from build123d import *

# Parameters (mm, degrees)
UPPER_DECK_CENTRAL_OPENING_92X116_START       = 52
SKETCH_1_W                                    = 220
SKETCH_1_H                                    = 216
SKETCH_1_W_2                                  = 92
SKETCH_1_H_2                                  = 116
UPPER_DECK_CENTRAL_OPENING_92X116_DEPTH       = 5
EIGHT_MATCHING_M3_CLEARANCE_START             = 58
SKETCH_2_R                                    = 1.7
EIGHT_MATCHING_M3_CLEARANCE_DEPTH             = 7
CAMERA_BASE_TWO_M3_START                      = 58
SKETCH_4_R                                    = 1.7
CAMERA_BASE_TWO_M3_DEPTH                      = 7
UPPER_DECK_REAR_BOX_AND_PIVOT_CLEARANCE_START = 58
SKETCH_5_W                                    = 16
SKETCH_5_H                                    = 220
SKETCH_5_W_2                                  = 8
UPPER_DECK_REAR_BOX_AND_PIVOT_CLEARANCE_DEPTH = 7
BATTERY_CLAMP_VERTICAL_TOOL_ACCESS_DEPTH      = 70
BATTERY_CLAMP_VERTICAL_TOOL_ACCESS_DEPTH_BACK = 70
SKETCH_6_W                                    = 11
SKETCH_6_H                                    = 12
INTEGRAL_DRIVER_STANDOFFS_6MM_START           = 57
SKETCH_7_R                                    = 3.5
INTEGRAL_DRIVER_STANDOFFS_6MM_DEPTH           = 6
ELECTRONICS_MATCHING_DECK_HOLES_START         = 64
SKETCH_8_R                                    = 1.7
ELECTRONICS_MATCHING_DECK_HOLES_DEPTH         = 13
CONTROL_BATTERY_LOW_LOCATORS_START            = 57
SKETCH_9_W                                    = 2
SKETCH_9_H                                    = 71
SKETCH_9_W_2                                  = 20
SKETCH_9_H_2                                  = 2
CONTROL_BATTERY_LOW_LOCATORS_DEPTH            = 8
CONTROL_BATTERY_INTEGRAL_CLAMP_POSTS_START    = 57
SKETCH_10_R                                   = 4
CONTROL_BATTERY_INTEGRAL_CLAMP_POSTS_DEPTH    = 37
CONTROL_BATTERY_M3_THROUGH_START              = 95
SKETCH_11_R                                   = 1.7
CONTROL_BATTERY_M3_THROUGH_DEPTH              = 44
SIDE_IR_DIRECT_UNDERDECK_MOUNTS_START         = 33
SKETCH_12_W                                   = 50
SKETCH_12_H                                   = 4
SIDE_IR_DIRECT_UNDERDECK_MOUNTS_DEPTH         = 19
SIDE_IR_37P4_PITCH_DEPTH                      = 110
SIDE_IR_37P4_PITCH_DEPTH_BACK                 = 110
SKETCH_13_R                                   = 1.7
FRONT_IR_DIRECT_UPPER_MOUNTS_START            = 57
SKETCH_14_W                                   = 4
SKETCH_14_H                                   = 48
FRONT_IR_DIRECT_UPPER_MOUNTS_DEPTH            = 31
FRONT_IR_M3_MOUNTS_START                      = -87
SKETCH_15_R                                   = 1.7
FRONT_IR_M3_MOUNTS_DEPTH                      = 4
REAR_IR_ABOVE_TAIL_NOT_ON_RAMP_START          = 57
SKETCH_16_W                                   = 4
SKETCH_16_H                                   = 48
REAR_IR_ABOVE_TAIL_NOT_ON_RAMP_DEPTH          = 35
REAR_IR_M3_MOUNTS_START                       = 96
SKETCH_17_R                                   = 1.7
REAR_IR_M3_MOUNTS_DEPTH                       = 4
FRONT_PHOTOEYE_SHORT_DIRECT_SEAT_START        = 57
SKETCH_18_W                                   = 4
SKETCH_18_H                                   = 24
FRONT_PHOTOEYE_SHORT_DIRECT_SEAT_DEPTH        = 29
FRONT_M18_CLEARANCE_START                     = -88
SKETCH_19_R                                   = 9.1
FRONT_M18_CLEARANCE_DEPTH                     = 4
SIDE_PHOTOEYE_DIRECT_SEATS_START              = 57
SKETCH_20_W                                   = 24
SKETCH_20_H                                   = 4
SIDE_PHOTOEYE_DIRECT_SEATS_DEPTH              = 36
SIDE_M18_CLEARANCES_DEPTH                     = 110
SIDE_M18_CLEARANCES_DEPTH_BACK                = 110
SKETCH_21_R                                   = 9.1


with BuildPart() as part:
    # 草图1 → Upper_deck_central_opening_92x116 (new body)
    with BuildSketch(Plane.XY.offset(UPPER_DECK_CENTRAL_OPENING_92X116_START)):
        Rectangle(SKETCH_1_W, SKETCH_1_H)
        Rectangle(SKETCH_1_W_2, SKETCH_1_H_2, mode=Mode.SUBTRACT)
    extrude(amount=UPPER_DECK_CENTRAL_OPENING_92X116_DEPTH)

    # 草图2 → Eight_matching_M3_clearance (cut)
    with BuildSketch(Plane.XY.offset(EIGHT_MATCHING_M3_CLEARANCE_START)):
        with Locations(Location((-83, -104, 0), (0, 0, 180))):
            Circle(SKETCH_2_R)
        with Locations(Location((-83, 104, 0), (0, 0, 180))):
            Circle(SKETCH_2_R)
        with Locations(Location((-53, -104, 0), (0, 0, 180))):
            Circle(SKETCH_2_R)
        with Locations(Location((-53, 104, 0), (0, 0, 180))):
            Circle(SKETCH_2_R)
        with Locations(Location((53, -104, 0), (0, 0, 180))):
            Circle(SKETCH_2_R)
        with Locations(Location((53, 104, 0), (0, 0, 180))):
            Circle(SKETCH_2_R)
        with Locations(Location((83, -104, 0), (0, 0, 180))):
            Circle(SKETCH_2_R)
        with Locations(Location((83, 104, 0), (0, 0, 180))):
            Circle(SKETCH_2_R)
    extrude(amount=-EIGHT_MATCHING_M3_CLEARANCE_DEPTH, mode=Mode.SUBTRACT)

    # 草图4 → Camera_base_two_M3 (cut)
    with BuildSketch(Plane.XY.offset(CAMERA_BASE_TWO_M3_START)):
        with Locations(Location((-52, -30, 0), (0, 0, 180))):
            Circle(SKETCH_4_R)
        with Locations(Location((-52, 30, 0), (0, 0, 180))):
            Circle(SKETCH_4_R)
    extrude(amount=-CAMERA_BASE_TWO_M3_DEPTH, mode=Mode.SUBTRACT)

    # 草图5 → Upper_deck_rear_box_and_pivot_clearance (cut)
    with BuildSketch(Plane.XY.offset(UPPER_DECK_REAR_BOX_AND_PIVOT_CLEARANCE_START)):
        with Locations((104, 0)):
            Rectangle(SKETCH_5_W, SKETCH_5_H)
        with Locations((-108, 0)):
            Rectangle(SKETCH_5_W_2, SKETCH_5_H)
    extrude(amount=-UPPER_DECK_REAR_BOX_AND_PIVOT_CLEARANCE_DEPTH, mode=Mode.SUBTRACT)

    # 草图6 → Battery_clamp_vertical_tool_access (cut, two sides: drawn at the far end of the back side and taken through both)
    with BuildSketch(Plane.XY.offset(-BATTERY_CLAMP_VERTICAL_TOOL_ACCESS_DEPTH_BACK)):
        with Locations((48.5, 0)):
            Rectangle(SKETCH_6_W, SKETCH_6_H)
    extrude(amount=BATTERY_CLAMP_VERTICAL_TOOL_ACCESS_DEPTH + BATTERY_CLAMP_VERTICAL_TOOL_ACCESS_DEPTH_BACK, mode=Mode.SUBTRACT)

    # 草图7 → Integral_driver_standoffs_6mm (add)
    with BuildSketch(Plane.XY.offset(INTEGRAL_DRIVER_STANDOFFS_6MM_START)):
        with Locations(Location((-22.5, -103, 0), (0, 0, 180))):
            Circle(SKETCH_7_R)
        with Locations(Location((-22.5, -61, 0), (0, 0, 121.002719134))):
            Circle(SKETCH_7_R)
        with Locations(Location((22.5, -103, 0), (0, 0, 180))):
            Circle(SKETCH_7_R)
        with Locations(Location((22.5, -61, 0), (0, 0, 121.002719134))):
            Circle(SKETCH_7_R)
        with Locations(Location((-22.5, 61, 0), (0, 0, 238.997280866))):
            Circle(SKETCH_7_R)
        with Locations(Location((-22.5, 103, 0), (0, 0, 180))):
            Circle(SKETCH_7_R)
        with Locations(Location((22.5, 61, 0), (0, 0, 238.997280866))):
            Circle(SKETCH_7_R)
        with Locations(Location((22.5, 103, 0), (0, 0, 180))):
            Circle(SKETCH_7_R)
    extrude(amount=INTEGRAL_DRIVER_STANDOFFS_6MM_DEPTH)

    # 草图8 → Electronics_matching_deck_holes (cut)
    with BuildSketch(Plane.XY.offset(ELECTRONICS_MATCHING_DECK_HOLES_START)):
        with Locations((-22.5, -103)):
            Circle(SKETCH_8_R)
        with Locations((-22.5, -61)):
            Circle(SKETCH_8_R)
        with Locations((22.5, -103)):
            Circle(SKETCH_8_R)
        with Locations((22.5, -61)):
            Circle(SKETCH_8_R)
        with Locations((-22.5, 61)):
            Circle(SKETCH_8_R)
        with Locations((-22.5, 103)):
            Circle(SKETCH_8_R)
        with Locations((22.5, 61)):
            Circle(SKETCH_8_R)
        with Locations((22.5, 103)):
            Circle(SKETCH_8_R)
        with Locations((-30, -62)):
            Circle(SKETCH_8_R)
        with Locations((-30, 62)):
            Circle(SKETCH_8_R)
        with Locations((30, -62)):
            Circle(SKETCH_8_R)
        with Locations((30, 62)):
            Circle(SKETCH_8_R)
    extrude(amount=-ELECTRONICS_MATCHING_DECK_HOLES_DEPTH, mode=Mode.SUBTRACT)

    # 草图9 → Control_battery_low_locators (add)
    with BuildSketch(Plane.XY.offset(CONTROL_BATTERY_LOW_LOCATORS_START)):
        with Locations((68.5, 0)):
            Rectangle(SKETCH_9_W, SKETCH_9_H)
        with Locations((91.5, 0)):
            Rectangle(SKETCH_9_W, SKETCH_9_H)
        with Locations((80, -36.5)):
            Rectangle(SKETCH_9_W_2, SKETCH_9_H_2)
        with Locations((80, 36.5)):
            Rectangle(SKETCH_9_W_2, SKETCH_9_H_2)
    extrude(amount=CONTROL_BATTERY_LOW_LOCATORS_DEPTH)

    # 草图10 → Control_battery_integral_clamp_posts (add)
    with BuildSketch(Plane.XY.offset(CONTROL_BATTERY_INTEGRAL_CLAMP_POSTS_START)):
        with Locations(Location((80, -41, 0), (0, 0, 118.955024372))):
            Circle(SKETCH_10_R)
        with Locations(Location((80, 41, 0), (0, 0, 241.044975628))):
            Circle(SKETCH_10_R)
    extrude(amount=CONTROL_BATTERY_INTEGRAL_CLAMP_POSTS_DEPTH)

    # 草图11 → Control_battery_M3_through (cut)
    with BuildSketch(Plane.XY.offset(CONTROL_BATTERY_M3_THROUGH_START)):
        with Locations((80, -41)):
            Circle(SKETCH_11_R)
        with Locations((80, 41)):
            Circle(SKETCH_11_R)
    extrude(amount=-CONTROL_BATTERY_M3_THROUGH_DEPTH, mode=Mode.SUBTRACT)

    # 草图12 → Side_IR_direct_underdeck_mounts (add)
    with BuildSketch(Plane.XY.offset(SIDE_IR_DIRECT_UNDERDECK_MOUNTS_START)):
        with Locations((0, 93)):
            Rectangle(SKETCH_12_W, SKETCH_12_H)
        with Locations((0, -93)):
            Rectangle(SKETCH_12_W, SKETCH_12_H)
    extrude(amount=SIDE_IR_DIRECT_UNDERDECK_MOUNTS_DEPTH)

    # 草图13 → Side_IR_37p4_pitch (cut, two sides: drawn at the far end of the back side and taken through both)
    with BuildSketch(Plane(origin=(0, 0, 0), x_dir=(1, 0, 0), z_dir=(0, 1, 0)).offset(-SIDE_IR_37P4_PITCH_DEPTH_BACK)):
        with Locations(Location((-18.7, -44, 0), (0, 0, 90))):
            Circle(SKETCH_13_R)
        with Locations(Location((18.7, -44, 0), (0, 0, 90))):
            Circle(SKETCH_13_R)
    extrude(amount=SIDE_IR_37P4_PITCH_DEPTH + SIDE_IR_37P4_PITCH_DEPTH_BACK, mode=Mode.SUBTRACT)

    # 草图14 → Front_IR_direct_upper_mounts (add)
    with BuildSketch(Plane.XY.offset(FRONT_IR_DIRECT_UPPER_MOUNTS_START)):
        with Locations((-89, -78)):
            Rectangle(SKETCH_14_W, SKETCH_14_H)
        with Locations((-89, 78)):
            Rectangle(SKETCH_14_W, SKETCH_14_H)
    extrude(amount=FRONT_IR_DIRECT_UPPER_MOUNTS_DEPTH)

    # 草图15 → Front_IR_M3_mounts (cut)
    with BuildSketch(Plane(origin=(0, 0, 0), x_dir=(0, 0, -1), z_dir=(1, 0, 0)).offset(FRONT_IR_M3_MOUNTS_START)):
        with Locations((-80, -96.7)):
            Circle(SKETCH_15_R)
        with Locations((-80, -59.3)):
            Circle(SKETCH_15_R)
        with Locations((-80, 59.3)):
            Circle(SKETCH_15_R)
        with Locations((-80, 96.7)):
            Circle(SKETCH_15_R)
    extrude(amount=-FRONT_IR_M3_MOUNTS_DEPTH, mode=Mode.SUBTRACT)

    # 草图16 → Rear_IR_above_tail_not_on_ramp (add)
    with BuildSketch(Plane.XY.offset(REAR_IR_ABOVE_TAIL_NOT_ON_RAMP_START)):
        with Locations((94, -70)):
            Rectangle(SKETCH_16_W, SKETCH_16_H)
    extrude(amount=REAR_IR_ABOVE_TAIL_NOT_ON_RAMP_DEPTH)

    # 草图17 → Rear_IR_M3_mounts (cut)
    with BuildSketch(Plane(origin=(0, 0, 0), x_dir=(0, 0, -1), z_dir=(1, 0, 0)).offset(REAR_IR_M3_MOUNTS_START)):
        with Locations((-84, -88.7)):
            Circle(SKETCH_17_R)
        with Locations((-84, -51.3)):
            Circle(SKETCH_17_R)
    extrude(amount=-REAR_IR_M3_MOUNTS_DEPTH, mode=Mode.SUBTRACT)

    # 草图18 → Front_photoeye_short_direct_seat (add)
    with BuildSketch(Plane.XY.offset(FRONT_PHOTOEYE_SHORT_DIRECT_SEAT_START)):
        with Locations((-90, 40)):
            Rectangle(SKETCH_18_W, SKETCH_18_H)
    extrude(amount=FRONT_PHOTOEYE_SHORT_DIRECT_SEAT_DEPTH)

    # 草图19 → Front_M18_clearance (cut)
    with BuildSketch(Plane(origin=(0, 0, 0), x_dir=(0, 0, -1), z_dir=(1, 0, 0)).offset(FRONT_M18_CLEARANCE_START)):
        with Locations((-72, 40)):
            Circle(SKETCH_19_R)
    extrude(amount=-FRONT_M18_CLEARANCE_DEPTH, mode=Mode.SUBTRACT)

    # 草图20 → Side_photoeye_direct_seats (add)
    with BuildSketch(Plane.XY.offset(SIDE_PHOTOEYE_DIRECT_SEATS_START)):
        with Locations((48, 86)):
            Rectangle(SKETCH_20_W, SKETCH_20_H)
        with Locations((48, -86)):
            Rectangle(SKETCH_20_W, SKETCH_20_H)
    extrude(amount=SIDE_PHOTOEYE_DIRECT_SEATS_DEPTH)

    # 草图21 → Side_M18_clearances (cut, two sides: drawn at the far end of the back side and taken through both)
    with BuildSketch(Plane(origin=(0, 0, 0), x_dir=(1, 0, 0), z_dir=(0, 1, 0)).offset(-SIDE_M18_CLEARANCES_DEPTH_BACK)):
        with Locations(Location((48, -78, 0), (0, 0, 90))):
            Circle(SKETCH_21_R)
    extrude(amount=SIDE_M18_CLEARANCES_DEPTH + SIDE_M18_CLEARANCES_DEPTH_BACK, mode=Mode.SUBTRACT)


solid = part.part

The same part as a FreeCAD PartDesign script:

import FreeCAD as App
import Part
import Sketcher

doc = App.newDocument("Part")
params = doc.addObject("Spreadsheet::Sheet", "Params")
for row, (alias, value) in enumerate([
    ("sketch1_width", "220 mm"),
    ("sketch1_width2", "92 mm"),
    ("sketch1_height", "216 mm"),
    ("sketch1_height2", "116 mm"),
    ("pad1_length", "5 mm"),
    ("sketch2_diameter", "3.4 mm"),
    ("pocket1_length", "7 mm"),
    ("sketch3_diameter", "3.4 mm"),
    ("pocket2_length", "7 mm"),
    ("sketch4_width", "16 mm"),
    ("sketch4_width2", "8 mm"),
    ("sketch4_height", "220 mm"),
    ("pocket3_length", "7 mm"),
    ("sketch5_width", "11 mm"),
    ("sketch5_height", "12 mm"),
    ("sketch6_diameter", "7 mm"),
    ("pad2_length", "6 mm"),
    ("sketch7_diameter", "3.4 mm"),
    ("pocket5_length", "13 mm"),
    ("sketch8_width", "2 mm"),
    ("sketch8_width2", "20 mm"),
    ("sketch8_height", "71 mm"),
    ("pad3_length", "8 mm"),
    ("sketch9_diameter", "8 mm"),
    ("pad4_length", "37 mm"),
    ("sketch10_diameter", "3.4 mm"),
    ("pocket6_length", "44 mm"),
    ("sketch11_width", "50 mm"),
    ("sketch11_height", "4 mm"),
    ("pad5_length", "19 mm"),
    ("sketch12_diameter", "3.4 mm"),
    ("sketch13_width", "4 mm"),
    ("sketch13_height", "48 mm"),
    ("pad6_length", "31 mm"),
    ("sketch14_diameter", "3.4 mm"),
    ("pocket8_length", "4 mm"),
    ("sketch15_width", "4 mm"),
    ("sketch15_height", "48 mm"),
    ("pad7_length", "35 mm"),
    ("sketch16_diameter", "3.4 mm"),
    ("pocket9_length", "4 mm"),
    ("sketch17_width", "4 mm"),
    ("sketch17_height", "24 mm"),
    ("pad8_length", "29 mm"),
    ("sketch18_diameter", "18.2 mm"),
    ("pocket10_length", "4 mm"),
    ("sketch19_width", "24 mm"),
    ("sketch19_height", "4 mm"),
    ("pad9_length", "36 mm"),
    ("sketch20_diameter", "18.2 mm"),
], start=1):
    params.set(f"A{row}", alias)
    params.set(f"B{row}", "=" + value)
    params.setAlias(f"B{row}", alias)

body = doc.addObject("PartDesign::Body", "Body")

# Sketch on XY plane
sketch1 = body.newObject("Sketcher::SketchObject", "Sketch")
sketch1.AttachmentSupport = (doc.getObject("XY_Plane"), [""])
sketch1.MapMode = "FlatFace"
sketch1.AttachmentOffset = App.Placement(App.Vector(0, 0, 52), App.Rotation())
sketch1.addGeometry(Part.LineSegment(App.Vector(-110, 108, 0), App.Vector(-110, -108, 0)), False)
sketch1.addGeometry(Part.LineSegment(App.Vector(-110, -108, 0), App.Vector(110, -108, 0)), False)
sketch1.addGeometry(Part.LineSegment(App.Vector(110, -108, 0), App.Vector(110, 108, 0)), False)
sketch1.addGeometry(Part.LineSegment(App.Vector(110, 108, 0), App.Vector(-110, 108, 0)), False)
sketch1.addGeometry(Part.LineSegment(App.Vector(46, -58, 0), App.Vector(-46, -58, 0)), False)
sketch1.addGeometry(Part.LineSegment(App.Vector(-46, -58, 0), App.Vector(-46, 58, 0)), False)
sketch1.addGeometry(Part.LineSegment(App.Vector(-46, 58, 0), App.Vector(46, 58, 0)), False)
sketch1.addGeometry(Part.LineSegment(App.Vector(46, 58, 0), App.Vector(46, -58, 0)), False)
sketch1.addConstraint(Sketcher.Constraint("Coincident", 0, 2, 1, 1))
sketch1.addConstraint(Sketcher.Constraint("Coincident", 1, 2, 2, 1))
sketch1.addConstraint(Sketcher.Constraint("Coincident", 2, 2, 3, 1))
sketch1.addConstraint(Sketcher.Constraint("Coincident", 3, 2, 0, 1))
sketch1.addConstraint(Sketcher.Constraint("Coincident", 4, 2, 5, 1))
sketch1.addConstraint(Sketcher.Constraint("Coincident", 5, 2, 6, 1))
sketch1.addConstraint(Sketcher.Constraint("Coincident", 6, 2, 7, 1))
sketch1.addConstraint(Sketcher.Constraint("Coincident", 7, 2, 4, 1))
sketch1.addConstraint(Sketcher.Constraint("Vertical", 0))
sketch1.addConstraint(Sketcher.Constraint("Horizontal", 1))
sketch1.addConstraint(Sketcher.Constraint("Vertical", 2))
sketch1.addConstraint(Sketcher.Constraint("Horizontal", 3))
sketch1.addConstraint(Sketcher.Constraint("Horizontal", 4))
sketch1.addConstraint(Sketcher.Constraint("Vertical", 5))
sketch1.addConstraint(Sketcher.Constraint("Horizontal", 6))
sketch1.addConstraint(Sketcher.Constraint("Vertical", 7))
sketch1.addConstraint(Sketcher.Constraint("Symmetric", 0, 2, 2, 2, -1, 1))
sketch1.addConstraint(Sketcher.Constraint("Symmetric", 4, 2, 6, 2, -1, 1))
sketch1.addConstraint(Sketcher.Constraint("DistanceX", 1, 1, 1, 2, 220.0))
sketch1.addConstraint(Sketcher.Constraint("DistanceX", 4, 2, 4, 1, 92.0))
sketch1.addConstraint(Sketcher.Constraint("DistanceY", 0, 2, 0, 1, 216.0))
sketch1.addConstraint(Sketcher.Constraint("DistanceY", 5, 1, 5, 2, 116.0))
sketch1.setExpression("Constraints[18]", "Params.sketch1_width")
sketch1.setExpression("Constraints[19]", "Params.sketch1_width2")
sketch1.setExpression("Constraints[20]", "Params.sketch1_height")
sketch1.setExpression("Constraints[21]", "Params.sketch1_height2")
pad1 = body.newObject("PartDesign::Pad", "Pad")
pad1.Profile = sketch1
pad1.setExpression("Length", "Params.pad1_length")

# Sketch on XY plane
sketch2 = body.newObject("Sketcher::SketchObject", "Sketch001")
sketch2.AttachmentSupport = (doc.getObject("XY_Plane"), [""])
sketch2.MapMode = "FlatFace"
sketch2.AttachmentOffset = App.Placement(App.Vector(0, 0, 58), App.Rotation())
sketch2.addGeometry(Part.Circle(App.Vector(-83, -104, 0), App.Vector(0, 0, 1), 1.7), False)
sketch2.addGeometry(Part.Circle(App.Vector(-83, 104, 0), App.Vector(0, 0, 1), 1.7), False)
sketch2.addGeometry(Part.Circle(App.Vector(-53, -104, 0), App.Vector(0, 0, 1), 1.7), False)
sketch2.addGeometry(Part.Circle(App.Vector(-53, 104, 0), App.Vector(0, 0, 1), 1.7), False)
sketch2.addGeometry(Part.Circle(App.Vector(53, -104, 0), App.Vector(0, 0, 1), 1.7), False)
sketch2.addGeometry(Part.Circle(App.Vector(53, 104, 0), App.Vector(0, 0, 1), 1.7), False)
sketch2.addGeometry(Part.Circle(App.Vector(83, -104, 0), App.Vector(0, 0, 1), 1.7), False)
sketch2.addGeometry(Part.Circle(App.Vector(83, 104, 0), App.Vector(0, 0, 1), 1.7), False)
sketch2.addConstraint(Sketcher.Constraint("Equal", 0, 1))
sketch2.addConstraint(Sketcher.Constraint("Equal", 1, 2))
sketch2.addConstraint(Sketcher.Constraint("Equal", 2, 3))
sketch2.addConstraint(Sketcher.Constraint("Equal", 3, 4))
sketch2.addConstraint(Sketcher.Constraint("Equal", 4, 5))
sketch2.addConstraint(Sketcher.Constraint("Equal", 5, 6))
sketch2.addConstraint(Sketcher.Constraint("Equal", 6, 7))
sketch2.addConstraint(Sketcher.Constraint("Symmetric", 3, 3, 4, 3, -1, 1))
sketch2.addConstraint(Sketcher.Constraint("Symmetric", 2, 3, 5, 3, -1, 1))
sketch2.addConstraint(Sketcher.Constraint("Symmetric", 1, 3, 6, 3, -1, 1))
sketch2.addConstraint(Sketcher.Constraint("Symmetric", 0, 3, 7, 3, -1, 1))
sketch2.addConstraint(Sketcher.Constraint("Symmetric", 2, 3, 4, 3, -2))
sketch2.addConstraint(Sketcher.Constraint("Symmetric", 0, 3, 6, 3, -2))
sketch2.addConstraint(Sketcher.Constraint("Horizontal", 0, 3, 2, 3))
sketch2.addConstraint(Sketcher.Constraint("Diameter", 0, 3.4))
sketch2.addConstraint(Sketcher.Constraint("DistanceX", 0, 3, -1, 1, 83.0))
sketch2.addConstraint(Sketcher.Constraint("DistanceY", 0, 3, -1, 1, 104.0))
sketch2.addConstraint(Sketcher.Constraint("DistanceX", 2, 3, -1, 1, 53.0))
sketch2.setExpression("Constraints[14]", "Params.sketch2_diameter")
pocket1 = body.newObject("PartDesign::Pocket", "Pocket")
pocket1.Profile = sketch2
pocket1.setExpression("Length", "Params.pocket1_length")

# Sketch on XY plane
sketch3 = body.newObject("Sketcher::SketchObject", "Sketch002")
sketch3.AttachmentSupport = (doc.getObject("XY_Plane"), [""])
sketch3.MapMode = "FlatFace"
sketch3.AttachmentOffset = App.Placement(App.Vector(0, 0, 58), App.Rotation())
sketch3.addGeometry(Part.Circle(App.Vector(-52, -30, 0), App.Vector(0, 0, 1), 1.7), False)
sketch3.addGeometry(Part.Circle(App.Vector(-52, 30, 0), App.Vector(0, 0, 1), 1.7), False)
sketch3.addConstraint(Sketcher.Constraint("Equal", 0, 1))
sketch3.addConstraint(Sketcher.Constraint("Symmetric", 0, 3, 1, 3, -1))
sketch3.addConstraint(Sketcher.Constraint("Diameter", 0, 3.4))
sketch3.addConstraint(Sketcher.Constraint("DistanceX", 0, 3, -1, 1, 52.0))
sketch3.addConstraint(Sketcher.Constraint("DistanceY", 0, 3, -1, 1, 30.0))
sketch3.setExpression("Constraints[2]", "Params.sketch3_diameter")
pocket2 = body.newObject("PartDesign::Pocket", "Pocket001")
pocket2.Profile = sketch3
pocket2.setExpression("Length", "Params.pocket2_length")

# Sketch on XY plane
sketch4 = body.newObject("Sketcher::SketchObject", "Sketch003")
sketch4.AttachmentSupport = (doc.getObject("XY_Plane"), [""])
sketch4.MapMode = "FlatFace"
sketch4.AttachmentOffset = App.Placement(App.Vector(0, 0, 58), App.Rotation())
sketch4.addGeometry(Part.LineSegment(App.Vector(96, 110, 0), App.Vector(96, -110, 0)), False)
sketch4.addGeometry(Part.LineSegment(App.Vector(96, -110, 0), App.Vector(112, -110, 0)), False)
sketch4.addGeometry(Part.LineSegment(App.Vector(112, -110, 0), App.Vector(112, 110, 0)), False)
sketch4.addGeometry(Part.LineSegment(App.Vector(112, 110, 0), App.Vector(96, 110, 0)), False)
sketch4.addGeometry(Part.LineSegment(App.Vector(-112, 110, 0), App.Vector(-112, -110, 0)), False)
sketch4.addGeometry(Part.LineSegment(App.Vector(-112, -110, 0), App.Vector(-104, -110, 0)), False)
sketch4.addGeometry(Part.LineSegment(App.Vector(-104, -110, 0), App.Vector(-104, 110, 0)), False)
sketch4.addGeometry(Part.LineSegment(App.Vector(-104, 110, 0), App.Vector(-112, 110, 0)), False)
sketch4.addConstraint(Sketcher.Constraint("Coincident", 0, 2, 1, 1))
sketch4.addConstraint(Sketcher.Constraint("Coincident", 1, 2, 2, 1))
sketch4.addConstraint(Sketcher.Constraint("Coincident", 2, 2, 3, 1))
sketch4.addConstraint(Sketcher.Constraint("Coincident", 3, 2, 0, 1))
sketch4.addConstraint(Sketcher.Constraint("Coincident", 4, 2, 5, 1))
sketch4.addConstraint(Sketcher.Constraint("Coincident", 5, 2, 6, 1))
sketch4.addConstraint(Sketcher.Constraint("Coincident", 6, 2, 7, 1))
sketch4.addConstraint(Sketcher.Constraint("Coincident", 7, 2, 4, 1))
sketch4.addConstraint(Sketcher.Constraint("Vertical", 0))
sketch4.addConstraint(Sketcher.Constraint("Horizontal", 1))
sketch4.addConstraint(Sketcher.Constraint("Vertical", 2))
sketch4.addConstraint(Sketcher.Constraint("Horizontal", 3))
sketch4.addConstraint(Sketcher.Constraint("Vertical", 4))
sketch4.addConstraint(Sketcher.Constraint("Horizontal", 5))
sketch4.addConstraint(Sketcher.Constraint("Vertical", 6))
sketch4.addConstraint(Sketcher.Constraint("Horizontal", 7))
sketch4.addConstraint(Sketcher.Constraint("Symmetric", 2, 2, 4, 2, -1, 1))
sketch4.addConstraint(Sketcher.Constraint("Horizontal", 1, 2, 4, 2))
sketch4.addConstraint(Sketcher.Constraint("Horizontal", 3, 2, 6, 2))
sketch4.addConstraint(Sketcher.Constraint("DistanceX", 1, 1, 1, 2, 16.0))
sketch4.addConstraint(Sketcher.Constraint("DistanceX", 5, 1, 5, 2, 8.0))
sketch4.addConstraint(Sketcher.Constraint("DistanceY", 0, 2, 0, 1, 220.0))
sketch4.addConstraint(Sketcher.Constraint("DistanceX", -1, 1, 0, 2, 96.0))
sketch4.setExpression("Constraints[19]", "Params.sketch4_width")
sketch4.setExpression("Constraints[20]", "Params.sketch4_width2")
sketch4.setExpression("Constraints[21]", "Params.sketch4_height")
pocket3 = body.newObject("PartDesign::Pocket", "Pocket002")
pocket3.Profile = sketch4
pocket3.setExpression("Length", "Params.pocket3_length")

# Sketch on XY plane
sketch5 = body.newObject("Sketcher::SketchObject", "Sketch004")
sketch5.AttachmentSupport = (doc.getObject("XY_Plane"), [""])
sketch5.MapMode = "FlatFace"
sketch5.addGeometry(Part.LineSegment(App.Vector(43, 6, 0), App.Vector(43, -6, 0)), False)
sketch5.addGeometry(Part.LineSegment(App.Vector(43, -6, 0), App.Vector(54, -6, 0)), False)
sketch5.addGeometry(Part.LineSegment(App.Vector(54, -6, 0), App.Vector(54, 6, 0)), False)
sketch5.addGeometry(Part.LineSegment(App.Vector(54, 6, 0), App.Vector(43, 6, 0)), False)
sketch5.addConstraint(Sketcher.Constraint("Coincident", 0, 2, 1, 1))
sketch5.addConstraint(Sketcher.Constraint("Coincident", 1, 2, 2, 1))
sketch5.addConstraint(Sketcher.Constraint("Coincident", 2, 2, 3, 1))
sketch5.addConstraint(Sketcher.Constraint("Coincident", 3, 2, 0, 1))
sketch5.addConstraint(Sketcher.Constraint("Vertical", 0))
sketch5.addConstraint(Sketcher.Constraint("Horizontal", 1))
sketch5.addConstraint(Sketcher.Constraint("Vertical", 2))
sketch5.addConstraint(Sketcher.Constraint("Horizontal", 3))
sketch5.addConstraint(Sketcher.Constraint("DistanceX", 1, 1, 1, 2, 11.0))
sketch5.addConstraint(Sketcher.Constraint("DistanceY", 0, 2, 0, 1, 12.0))
sketch5.addConstraint(Sketcher.Constraint("DistanceX", -1, 1, 0, 2, 43.0))
sketch5.addConstraint(Sketcher.Constraint("DistanceY", 0, 2, -1, 1, 6.0))
sketch5.setExpression("Constraints[8]", "Params.sketch5_width")
sketch5.setExpression("Constraints[9]", "Params.sketch5_height")
pocket4 = body.newObject("PartDesign::Pocket", "Pocket003")
pocket4.Profile = sketch5
pocket4.Type = "ThroughAll"
pocket4.Midplane = True

# Sketch on XY plane
sketch6 = body.newObject("Sketcher::SketchObject", "Sketch005")
sketch6.AttachmentSupport = (doc.getObject("XY_Plane"), [""])
sketch6.MapMode = "FlatFace"
sketch6.AttachmentOffset = App.Placement(App.Vector(0, 0, 57), App.Rotation())
sketch6.addGeometry(Part.Circle(App.Vector(-22.5, -103, 0), App.Vector(0, 0, 1), 3.5), False)
sketch6.addGeometry(Part.Circle(App.Vector(-22.5, -61, 0), App.Vector(0, 0, 1), 3.5), False)
sketch6.addGeometry(Part.Circle(App.Vector(22.5, -103, 0), App.Vector(0, 0, 1), 3.5), False)
sketch6.addGeometry(Part.Circle(App.Vector(22.5, -61, 0), App.Vector(0, 0, 1), 3.5), False)
sketch6.addGeometry(Part.Circle(App.Vector(-22.5, 61, 0), App.Vector(0, 0, 1), 3.5), False)
sketch6.addGeometry(Part.Circle(App.Vector(-22.5, 103, 0), App.Vector(0, 0, 1), 3.5), False)
sketch6.addGeometry(Part.Circle(App.Vector(22.5, 61, 0), App.Vector(0, 0, 1), 3.5), False)
sketch6.addGeometry(Part.Circle(App.Vector(22.5, 103, 0), App.Vector(0, 0, 1), 3.5), False)
sketch6.addConstraint(Sketcher.Constraint("Equal", 0, 1))
sketch6.addConstraint(Sketcher.Constraint("Equal", 1, 2))
sketch6.addConstraint(Sketcher.Constraint("Equal", 2, 3))
sketch6.addConstraint(Sketcher.Constraint("Equal", 3, 4))
sketch6.addConstraint(Sketcher.Constraint("Equal", 4, 5))
sketch6.addConstraint(Sketcher.Constraint("Equal", 5, 6))
sketch6.addConstraint(Sketcher.Constraint("Equal", 6, 7))
sketch6.addConstraint(Sketcher.Constraint("Symmetric", 3, 3, 4, 3, -1, 1))
sketch6.addConstraint(Sketcher.Constraint("Symmetric", 2, 3, 5, 3, -1, 1))
sketch6.addConstraint(Sketcher.Constraint("Symmetric", 1, 3, 6, 3, -1, 1))
sketch6.addConstraint(Sketcher.Constraint("Symmetric", 0, 3, 7, 3, -1, 1))
sketch6.addConstraint(Sketcher.Constraint("Symmetric", 0, 3, 2, 3, -2))
sketch6.addConstraint(Sketcher.Constraint("Symmetric", 1, 3, 3, 3, -2))
sketch6.addConstraint(Sketcher.Constraint("Vertical", 0, 3, 1, 3))
sketch6.addConstraint(Sketcher.Constraint("Diameter", 0, 7.0))
sketch6.addConstraint(Sketcher.Constraint("DistanceY", 0, 3, -1, 1, 103.0))
sketch6.addConstraint(Sketcher.Constraint("DistanceY", 1, 3, -1, 1, 61.0))
sketch6.addConstraint(Sketcher.Constraint("DistanceX", 0, 3, 2, 3, 45.0))
sketch6.setExpression("Constraints[14]", "Params.sketch6_diameter")
pad2 = body.newObject("PartDesign::Pad", "Pad001")
pad2.Profile = sketch6
pad2.setExpression("Length", "Params.pad2_length")

# Sketch on XY plane
sketch7 = body.newObject("Sketcher::SketchObject", "Sketch006")
sketch7.AttachmentSupport = (doc.getObject("XY_Plane"), [""])
sketch7.MapMode = "FlatFace"
sketch7.AttachmentOffset = App.Placement(App.Vector(0, 0, 64), App.Rotation())
sketch7.addGeometry(Part.Circle(App.Vector(-22.5, -103, 0), App.Vector(0, 0, 1), 1.7), False)
sketch7.addGeometry(Part.Circle(App.Vector(-22.5, -61, 0), App.Vector(0, 0, 1), 1.7), False)
sketch7.addGeometry(Part.Circle(App.Vector(22.5, -103, 0), App.Vector(0, 0, 1), 1.7), False)
sketch7.addGeometry(Part.Circle(App.Vector(22.5, -61, 0), App.Vector(0, 0, 1), 1.7), False)
sketch7.addGeometry(Part.Circle(App.Vector(-22.5, 61, 0), App.Vector(0, 0, 1), 1.7), False)
sketch7.addGeometry(Part.Circle(App.Vector(-22.5, 103, 0), App.Vector(0, 0, 1), 1.7), False)
sketch7.addGeometry(Part.Circle(App.Vector(22.5, 61, 0), App.Vector(0, 0, 1), 1.7), False)
sketch7.addGeometry(Part.Circle(App.Vector(22.5, 103, 0), App.Vector(0, 0, 1), 1.7), False)
sketch7.addGeometry(Part.Circle(App.Vector(-30, -62, 0), App.Vector(0, 0, 1), 1.7), False)
sketch7.addGeometry(Part.Circle(App.Vector(-30, 62, 0), App.Vector(0, 0, 1), 1.7), False)
sketch7.addGeometry(Part.Circle(App.Vector(30, -62, 0), App.Vector(0, 0, 1), 1.7), False)
sketch7.addGeometry(Part.Circle(App.Vector(30, 62, 0), App.Vector(0, 0, 1), 1.7), False)
sketch7.addConstraint(Sketcher.Constraint("Equal", 0, 1))
sketch7.addConstraint(Sketcher.Constraint("Equal", 1, 2))
sketch7.addConstraint(Sketcher.Constraint("Equal", 2, 3))
sketch7.addConstraint(Sketcher.Constraint("Equal", 3, 4))
sketch7.addConstraint(Sketcher.Constraint("Equal", 4, 5))
sketch7.addConstraint(Sketcher.Constraint("Equal", 5, 6))
sketch7.addConstraint(Sketcher.Constraint("Equal", 6, 7))
sketch7.addConstraint(Sketcher.Constraint("Equal", 7, 8))
sketch7.addConstraint(Sketcher.Constraint("Equal", 8, 9))
sketch7.addConstraint(Sketcher.Constraint("Equal", 9, 10))
sketch7.addConstraint(Sketcher.Constraint("Equal", 10, 11))
sketch7.addConstraint(Sketcher.Constraint("Symmetric", 3, 3, 4, 3, -1, 1))
sketch7.addConstraint(Sketcher.Constraint("Symmetric", 2, 3, 5, 3, -1, 1))
sketch7.addConstraint(Sketcher.Constraint("Symmetric", 1, 3, 6, 3, -1, 1))
sketch7.addConstraint(Sketcher.Constraint("Symmetric", 0, 3, 7, 3, -1, 1))
sketch7.addConstraint(Sketcher.Constraint("Symmetric", 9, 3, 10, 3, -1, 1))
sketch7.addConstraint(Sketcher.Constraint("Symmetric", 8, 3, 11, 3, -1, 1))
sketch7.addConstraint(Sketcher.Constraint("Symmetric", 0, 3, 2, 3, -2))
sketch7.addConstraint(Sketcher.Constraint("Symmetric", 1, 3, 3, 3, -2))
sketch7.addConstraint(Sketcher.Constraint("Symmetric", 8, 3, 10, 3, -2))
sketch7.addConstraint(Sketcher.Constraint("Vertical", 0, 3, 1, 3))
sketch7.addConstraint(Sketcher.Constraint("Diameter", 0, 3.4))
sketch7.addConstraint(Sketcher.Constraint("DistanceY", 0, 3, -1, 1, 103.0))
sketch7.addConstraint(Sketcher.Constraint("DistanceY", 1, 3, -1, 1, 61.0))
sketch7.addConstraint(Sketcher.Constraint("DistanceX", 8, 3, -1, 1, 30.0))
sketch7.addConstraint(Sketcher.Constraint("DistanceY", 8, 3, -1, 1, 62.0))
sketch7.addConstraint(Sketcher.Constraint("DistanceX", 0, 3, 2, 3, 45.0))
sketch7.setExpression("Constraints[21]", "Params.sketch7_diameter")
pocket5 = body.newObject("PartDesign::Pocket", "Pocket004")
pocket5.Profile = sketch7
pocket5.setExpression("Length", "Params.pocket5_length")

# Sketch on XY plane
sketch8 = body.newObject("Sketcher::SketchObject", "Sketch007")
sketch8.AttachmentSupport = (doc.getObject("XY_Plane"), [""])
sketch8.MapMode = "FlatFace"
sketch8.AttachmentOffset = App.Placement(App.Vector(0, 0, 57), App.Rotation())
sketch8.addGeometry(Part.LineSegment(App.Vector(67.5, 35.5, 0), App.Vector(67.5, -35.5, 0)), False)
sketch8.addGeometry(Part.LineSegment(App.Vector(67.5, -35.5, 0), App.Vector(69.5, -35.5, 0)), False)
sketch8.addGeometry(Part.LineSegment(App.Vector(69.5, -35.5, 0), App.Vector(69.5, 35.5, 0)), False)
sketch8.addGeometry(Part.LineSegment(App.Vector(69.5, 35.5, 0), App.Vector(67.5, 35.5, 0)), False)
sketch8.addGeometry(Part.LineSegment(App.Vector(90.5, 35.5, 0), App.Vector(90.5, -35.5, 0)), False)
sketch8.addGeometry(Part.LineSegment(App.Vector(90.5, -35.5, 0), App.Vector(92.5, -35.5, 0)), False)
sketch8.addGeometry(Part.LineSegment(App.Vector(92.5, -35.5, 0), App.Vector(92.5, 35.5, 0)), False)
sketch8.addGeometry(Part.LineSegment(App.Vector(92.5, 35.5, 0), App.Vector(90.5, 35.5, 0)), False)
sketch8.addGeometry(Part.LineSegment(App.Vector(70, -35.5, 0), App.Vector(70, -37.5, 0)), False)
sketch8.addGeometry(Part.LineSegment(App.Vector(70, -37.5, 0), App.Vector(90, -37.5, 0)), False)
sketch8.addGeometry(Part.LineSegment(App.Vector(90, -37.5, 0), App.Vector(90, -35.5, 0)), False)
sketch8.addGeometry(Part.LineSegment(App.Vector(90, -35.5, 0), App.Vector(70, -35.5, 0)), False)
sketch8.addGeometry(Part.LineSegment(App.Vector(70, 37.5, 0), App.Vector(70, 35.5, 0)), False)
sketch8.addGeometry(Part.LineSegment(App.Vector(70, 35.5, 0), App.Vector(90, 35.5, 0)), False)
sketch8.addGeometry(Part.LineSegment(App.Vector(90, 35.5, 0), App.Vector(90, 37.5, 0)), False)
sketch8.addGeometry(Part.LineSegment(App.Vector(90, 37.5, 0), App.Vector(70, 37.5, 0)), False)
sketch8.addConstraint(Sketcher.Constraint("Coincident", 0, 2, 1, 1))
sketch8.addConstraint(Sketcher.Constraint("Coincident", 1, 2, 2, 1))
sketch8.addConstraint(Sketcher.Constraint("Coincident", 2, 2, 3, 1))
sketch8.addConstraint(Sketcher.Constraint("Coincident", 3, 2, 0, 1))
sketch8.addConstraint(Sketcher.Constraint("Coincident", 4, 2, 5, 1))
sketch8.addConstraint(Sketcher.Constraint("Coincident", 5, 2, 6, 1))
sketch8.addConstraint(Sketcher.Constraint("Coincident", 6, 2, 7, 1))
sketch8.addConstraint(Sketcher.Constraint("Coincident", 7, 2, 4, 1))
sketch8.addConstraint(Sketcher.Constraint("Coincident", 8, 2, 9, 1))
sketch8.addConstraint(Sketcher.Constraint("Coincident", 9, 2, 10, 1))
sketch8.addConstraint(Sketcher.Constraint("Coincident", 10, 2, 11, 1))
sketch8.addConstraint(Sketcher.Constraint("Coincident", 11, 2, 8, 1))
sketch8.addConstraint(Sketcher.Constraint("Coincident", 12, 2, 13, 1))
sketch8.addConstraint(Sketcher.Constraint("Coincident", 13, 2, 14, 1))
sketch8.addConstraint(Sketcher.Constraint("Coincident", 14, 2, 15, 1))
sketch8.addConstraint(Sketcher.Constraint("Coincident", 15, 2, 12, 1))
sketch8.addConstraint(Sketcher.Constraint("Vertical", 0))
sketch8.addConstraint(Sketcher.Constraint("Horizontal", 1))
sketch8.addConstraint(Sketcher.Constraint("Vertical", 2))
sketch8.addConstraint(Sketcher.Constraint("Horizontal", 3))
sketch8.addConstraint(Sketcher.Constraint("Vertical", 4))
sketch8.addConstraint(Sketcher.Constraint("Horizontal", 5))
sketch8.addConstraint(Sketcher.Constraint("Vertical", 6))
sketch8.addConstraint(Sketcher.Constraint("Horizontal", 7))
sketch8.addConstraint(Sketcher.Constraint("Vertical", 8))
sketch8.addConstraint(Sketcher.Constraint("Horizontal", 9))
sketch8.addConstraint(Sketcher.Constraint("Vertical", 10))
sketch8.addConstraint(Sketcher.Constraint("Horizontal", 11))
sketch8.addConstraint(Sketcher.Constraint("Vertical", 12))
sketch8.addConstraint(Sketcher.Constraint("Horizontal", 13))
sketch8.addConstraint(Sketcher.Constraint("Vertical", 14))
sketch8.addConstraint(Sketcher.Constraint("Horizontal", 15))
sketch8.addConstraint(Sketcher.Constraint("Symmetric", 11, 2, 12, 2, -1))
sketch8.addConstraint(Sketcher.Constraint("Symmetric", 9, 2, 14, 2, -1))
sketch8.addConstraint(Sketcher.Constraint("Horizontal", 1, 2, 4, 2))
sketch8.addConstraint(Sketcher.Constraint("Horizontal", 3, 2, 6, 2))
sketch8.addConstraint(Sketcher.Constraint("Horizontal", 5, 2, 10, 2))
sketch8.addConstraint(Sketcher.Constraint("Horizontal", 7, 2, 12, 2))
sketch8.addConstraint(Sketcher.Constraint("Equal", 3, 5))
sketch8.addConstraint(Sketcher.Constraint("Equal", 7, 8))
sketch8.addConstraint(Sketcher.Constraint("DistanceX", 1, 1, 1, 2, 2.0))
sketch8.addConstraint(Sketcher.Constraint("DistanceX", 9, 1, 9, 2, 20.0))
sketch8.addConstraint(Sketcher.Constraint("DistanceY", 0, 2, 0, 1, 71.0))
sketch8.addConstraint(Sketcher.Constraint("DistanceX", -1, 1, 8, 2, 70.0))
sketch8.addConstraint(Sketcher.Constraint("DistanceX", 1, 2, 4, 2, 21.0))
sketch8.addConstraint(Sketcher.Constraint("DistanceX", -1, 1, 0, 2, 67.5))
sketch8.setExpression("Constraints[40]", "Params.sketch8_width")
sketch8.setExpression("Constraints[41]", "Params.sketch8_width2")
sketch8.setExpression("Constraints[42]", "Params.sketch8_height")
pad3 = body.newObject("PartDesign::Pad", "Pad002")
pad3.Profile = sketch8
pad3.setExpression("Length", "Params.pad3_length")

# Sketch on XY plane
sketch9 = body.newObject("Sketcher::SketchObject", "Sketch008")
sketch9.AttachmentSupport = (doc.getObject("XY_Plane"), [""])
sketch9.MapMode = "FlatFace"
sketch9.AttachmentOffset = App.Placement(App.Vector(0, 0, 57), App.Rotation())
sketch9.addGeometry(Part.Circle(App.Vector(80, -41, 0), App.Vector(0, 0, 1), 4), False)
sketch9.addGeometry(Part.Circle(App.Vector(80, 41, 0), App.Vector(0, 0, 1), 4), False)
sketch9.addConstraint(Sketcher.Constraint("Equal", 0, 1))
sketch9.addConstraint(Sketcher.Constraint("Symmetric", 0, 3, 1, 3, -1))
sketch9.addConstraint(Sketcher.Constraint("Diameter", 0, 8.0))
sketch9.addConstraint(Sketcher.Constraint("DistanceX", -1, 1, 0, 3, 80.0))
sketch9.addConstraint(Sketcher.Constraint("DistanceY", 0, 3, -1, 1, 41.0))
sketch9.setExpression("Constraints[2]", "Params.sketch9_diameter")
pad4 = body.newObject("PartDesign::Pad", "Pad003")
pad4.Profile = sketch9
pad4.setExpression("Length", "Params.pad4_length")

# Sketch on XY plane
sketch10 = body.newObject("Sketcher::SketchObject", "Sketch009")
sketch10.AttachmentSupport = (doc.getObject("XY_Plane"), [""])
sketch10.MapMode = "FlatFace"
sketch10.AttachmentOffset = App.Placement(App.Vector(0, 0, 95), App.Rotation())
sketch10.addGeometry(Part.Circle(App.Vector(80, -41, 0), App.Vector(0, 0, 1), 1.7), False)
sketch10.addGeometry(Part.Circle(App.Vector(80, 41, 0), App.Vector(0, 0, 1), 1.7), False)
sketch10.addConstraint(Sketcher.Constraint("Equal", 0, 1))
sketch10.addConstraint(Sketcher.Constraint("Symmetric", 0, 3, 1, 3, -1))
sketch10.addConstraint(Sketcher.Constraint("Diameter", 0, 3.4))
sketch10.addConstraint(Sketcher.Constraint("DistanceX", -1, 1, 0, 3, 80.0))
sketch10.addConstraint(Sketcher.Constraint("DistanceY", 0, 3, -1, 1, 41.0))
sketch10.setExpression("Constraints[2]", "Params.sketch10_diameter")
pocket6 = body.newObject("PartDesign::Pocket", "Pocket005")
pocket6.Profile = sketch10
pocket6.setExpression("Length", "Params.pocket6_length")

# Sketch on XY plane
sketch11 = body.newObject("Sketcher::SketchObject", "Sketch010")
sketch11.AttachmentSupport = (doc.getObject("XY_Plane"), [""])
sketch11.MapMode = "FlatFace"
sketch11.AttachmentOffset = App.Placement(App.Vector(0, 0, 33), App.Rotation())
sketch11.addGeometry(Part.LineSegment(App.Vector(-25, 95, 0), App.Vector(-25, 91, 0)), False)
sketch11.addGeometry(Part.LineSegment(App.Vector(-25, 91, 0), App.Vector(25, 91, 0)), False)
sketch11.addGeometry(Part.LineSegment(App.Vector(25, 91, 0), App.Vector(25, 95, 0)), False)
sketch11.addGeometry(Part.LineSegment(App.Vector(25, 95, 0), App.Vector(-25, 95, 0)), False)
sketch11.addGeometry(Part.LineSegment(App.Vector(-25, -91, 0), App.Vector(-25, -95, 0)), False)
sketch11.addGeometry(Part.LineSegment(App.Vector(-25, -95, 0), App.Vector(25, -95, 0)), False)
sketch11.addGeometry(Part.LineSegment(App.Vector(25, -95, 0), App.Vector(25, -91, 0)), False)
sketch11.addGeometry(Part.LineSegment(App.Vector(25, -91, 0), App.Vector(-25, -91, 0)), False)
sketch11.addConstraint(Sketcher.Constraint("Coincident", 0, 2, 1, 1))
sketch11.addConstraint(Sketcher.Constraint("Coincident", 1, 2, 2, 1))
sketch11.addConstraint(Sketcher.Constraint("Coincident", 2, 2, 3, 1))
sketch11.addConstraint(Sketcher.Constraint("Coincident", 3, 2, 0, 1))
sketch11.addConstraint(Sketcher.Constraint("Coincident", 4, 2, 5, 1))
sketch11.addConstraint(Sketcher.Constraint("Coincident", 5, 2, 6, 1))
sketch11.addConstraint(Sketcher.Constraint("Coincident", 6, 2, 7, 1))
sketch11.addConstraint(Sketcher.Constraint("Coincident", 7, 2, 4, 1))
sketch11.addConstraint(Sketcher.Constraint("Vertical", 0))
sketch11.addConstraint(Sketcher.Constraint("Horizontal", 1))
sketch11.addConstraint(Sketcher.Constraint("Vertical", 2))
sketch11.addConstraint(Sketcher.Constraint("Horizontal", 3))
sketch11.addConstraint(Sketcher.Constraint("Vertical", 4))
sketch11.addConstraint(Sketcher.Constraint("Horizontal", 5))
sketch11.addConstraint(Sketcher.Constraint("Vertical", 6))
sketch11.addConstraint(Sketcher.Constraint("Horizontal", 7))
sketch11.addConstraint(Sketcher.Constraint("Symmetric", 2, 2, 4, 2, -1, 1))
sketch11.addConstraint(Sketcher.Constraint("Symmetric", 0, 2, 6, 2, -1, 1))
sketch11.addConstraint(Sketcher.Constraint("Vertical", 3, 2, 4, 2))
sketch11.addConstraint(Sketcher.Constraint("DistanceX", 1, 1, 1, 2, 50.0))
sketch11.addConstraint(Sketcher.Constraint("DistanceY", 0, 2, 0, 1, 4.0))
sketch11.addConstraint(Sketcher.Constraint("DistanceY", -1, 1, 0, 2, 91.0))
sketch11.setExpression("Constraints[19]", "Params.sketch11_width")
sketch11.setExpression("Constraints[20]", "Params.sketch11_height")
pad5 = body.newObject("PartDesign::Pad", "Pad004")
pad5.Profile = sketch11
pad5.setExpression("Length", "Params.pad5_length")

# Sketch on XZ plane
sketch12 = body.newObject("Sketcher::SketchObject", "Sketch011")
sketch12.AttachmentSupport = (doc.getObject("XZ_Plane"), [""])
sketch12.MapMode = "FlatFace"
sketch12.addGeometry(Part.Circle(App.Vector(-18.7, 44, 0), App.Vector(0, 0, 1), 1.7), False)
sketch12.addGeometry(Part.Circle(App.Vector(18.7, 44, 0), App.Vector(0, 0, 1), 1.7), False)
sketch12.addConstraint(Sketcher.Constraint("Equal", 0, 1))
sketch12.addConstraint(Sketcher.Constraint("Symmetric", 0, 3, 1, 3, -2))
sketch12.addConstraint(Sketcher.Constraint("Diameter", 0, 3.4))
sketch12.addConstraint(Sketcher.Constraint("DistanceY", -1, 1, 0, 3, 44.0))
sketch12.addConstraint(Sketcher.Constraint("DistanceX", 0, 3, -1, 1, 18.7))
sketch12.setExpression("Constraints[2]", "Params.sketch12_diameter")
pocket7 = body.newObject("PartDesign::Pocket", "Pocket006")
pocket7.Profile = sketch12
pocket7.Type = "ThroughAll"
pocket7.Midplane = True

# Sketch on XY plane
sketch13 = body.newObject("Sketcher::SketchObject", "Sketch012")
sketch13.AttachmentSupport = (doc.getObject("XY_Plane"), [""])
sketch13.MapMode = "FlatFace"
sketch13.AttachmentOffset = App.Placement(App.Vector(0, 0, 57), App.Rotation())
sketch13.addGeometry(Part.LineSegment(App.Vector(-91, -54, 0), App.Vector(-91, -102, 0)), False)
sketch13.addGeometry(Part.LineSegment(App.Vector(-91, -102, 0), App.Vector(-87, -102, 0)), False)
sketch13.addGeometry(Part.LineSegment(App.Vector(-87, -102, 0), App.Vector(-87, -54, 0)), False)
sketch13.addGeometry(Part.LineSegment(App.Vector(-87, -54, 0), App.Vector(-91, -54, 0)), False)
sketch13.addGeometry(Part.LineSegment(App.Vector(-91, 102, 0), App.Vector(-91, 54, 0)), False)
sketch13.addGeometry(Part.LineSegment(App.Vector(-91, 54, 0), App.Vector(-87, 54, 0)), False)
sketch13.addGeometry(Part.LineSegment(App.Vector(-87, 54, 0), App.Vector(-87, 102, 0)), False)
sketch13.addGeometry(Part.LineSegment(App.Vector(-87, 102, 0), App.Vector(-91, 102, 0)), False)
sketch13.addConstraint(Sketcher.Constraint("Coincident", 0, 2, 1, 1))
sketch13.addConstraint(Sketcher.Constraint("Coincident", 1, 2, 2, 1))
sketch13.addConstraint(Sketcher.Constraint("Coincident", 2, 2, 3, 1))
sketch13.addConstraint(Sketcher.Constraint("Coincident", 3, 2, 0, 1))
sketch13.addConstraint(Sketcher.Constraint("Coincident", 4, 2, 5, 1))
sketch13.addConstraint(Sketcher.Constraint("Coincident", 5, 2, 6, 1))
sketch13.addConstraint(Sketcher.Constraint("Coincident", 6, 2, 7, 1))
sketch13.addConstraint(Sketcher.Constraint("Coincident", 7, 2, 4, 1))
sketch13.addConstraint(Sketcher.Constraint("Vertical", 0))
sketch13.addConstraint(Sketcher.Constraint("Horizontal", 1))
sketch13.addConstraint(Sketcher.Constraint("Vertical", 2))
sketch13.addConstraint(Sketcher.Constraint("Horizontal", 3))
sketch13.addConstraint(Sketcher.Constraint("Vertical", 4))
sketch13.addConstraint(Sketcher.Constraint("Horizontal", 5))
sketch13.addConstraint(Sketcher.Constraint("Vertical", 6))
sketch13.addConstraint(Sketcher.Constraint("Horizontal", 7))
sketch13.addConstraint(Sketcher.Constraint("Symmetric", 3, 2, 4, 2, -1))
sketch13.addConstraint(Sketcher.Constraint("Symmetric", 1, 2, 6, 2, -1))
sketch13.addConstraint(Sketcher.Constraint("DistanceX", 1, 1, 1, 2, 4.0))
sketch13.addConstraint(Sketcher.Constraint("DistanceY", 0, 2, 0, 1, 48.0))
sketch13.addConstraint(Sketcher.Constraint("DistanceX", 0, 2, -1, 1, 91.0))
sketch13.addConstraint(Sketcher.Constraint("DistanceY", 0, 2, -1, 1, 102.0))
sketch13.setExpression("Constraints[18]", "Params.sketch13_width")
sketch13.setExpression("Constraints[19]", "Params.sketch13_height")
pad6 = body.newObject("PartDesign::Pad", "Pad005")
pad6.Profile = sketch13
pad6.setExpression("Length", "Params.pad6_length")

# Sketch on YZ plane
sketch14 = body.newObject("Sketcher::SketchObject", "Sketch013")
sketch14.AttachmentSupport = (doc.getObject("YZ_Plane"), [""])
sketch14.MapMode = "FlatFace"
sketch14.AttachmentOffset = App.Placement(App.Vector(0, 0, -87), App.Rotation())
sketch14.addGeometry(Part.Circle(App.Vector(-96.7, 80, 0), App.Vector(0, 0, 1), 1.7), False)
sketch14.addGeometry(Part.Circle(App.Vector(-59.3, 80, 0), App.Vector(0, 0, 1), 1.7), False)
sketch14.addGeometry(Part.Circle(App.Vector(59.3, 80, 0), App.Vector(0, 0, 1), 1.7), False)
sketch14.addGeometry(Part.Circle(App.Vector(96.7, 80, 0), App.Vector(0, 0, 1), 1.7), False)
sketch14.addConstraint(Sketcher.Constraint("Equal", 0, 1))
sketch14.addConstraint(Sketcher.Constraint("Equal", 1, 2))
sketch14.addConstraint(Sketcher.Constraint("Equal", 2, 3))
sketch14.addConstraint(Sketcher.Constraint("Symmetric", 1, 3, 2, 3, -2))
sketch14.addConstraint(Sketcher.Constraint("Symmetric", 0, 3, 3, 3, -2))
sketch14.addConstraint(Sketcher.Constraint("Horizontal", 0, 3, 1, 3))
sketch14.addConstraint(Sketcher.Constraint("Diameter", 0, 3.4))
sketch14.addConstraint(Sketcher.Constraint("DistanceY", -1, 1, 0, 3, 80.0))
sketch14.addConstraint(Sketcher.Constraint("DistanceX", 0, 3, 2, 3, 156.0))
sketch14.addConstraint(Sketcher.Constraint("DistanceX", 0, 3, -1, 1, 96.7))
sketch14.setExpression("Constraints[6]", "Params.sketch14_diameter")
pocket8 = body.newObject("PartDesign::Pocket", "Pocket007")
pocket8.Profile = sketch14
pocket8.setExpression("Length", "Params.pocket8_length")

# Sketch on XY plane
sketch15 = body.newObject("Sketcher::SketchObject", "Sketch014")
sketch15.AttachmentSupport = (doc.getObject("XY_Plane"), [""])
sketch15.MapMode = "FlatFace"
sketch15.AttachmentOffset = App.Placement(App.Vector(0, 0, 57), App.Rotation())
sketch15.addGeometry(Part.LineSegment(App.Vector(92, -46, 0), App.Vector(92, -94, 0)), False)
sketch15.addGeometry(Part.LineSegment(App.Vector(92, -94, 0), App.Vector(96, -94, 0)), False)
sketch15.addGeometry(Part.LineSegment(App.Vector(96, -94, 0), App.Vector(96, -46, 0)), False)
sketch15.addGeometry(Part.LineSegment(App.Vector(96, -46, 0), App.Vector(92, -46, 0)), False)
sketch15.addConstraint(Sketcher.Constraint("Coincident", 0, 2, 1, 1))
sketch15.addConstraint(Sketcher.Constraint("Coincident", 1, 2, 2, 1))
sketch15.addConstraint(Sketcher.Constraint("Coincident", 2, 2, 3, 1))
sketch15.addConstraint(Sketcher.Constraint("Coincident", 3, 2, 0, 1))
sketch15.addConstraint(Sketcher.Constraint("Vertical", 0))
sketch15.addConstraint(Sketcher.Constraint("Horizontal", 1))
sketch15.addConstraint(Sketcher.Constraint("Vertical", 2))
sketch15.addConstraint(Sketcher.Constraint("Horizontal", 3))
sketch15.addConstraint(Sketcher.Constraint("DistanceX", 1, 1, 1, 2, 4.0))
sketch15.addConstraint(Sketcher.Constraint("DistanceY", 0, 2, 0, 1, 48.0))
sketch15.addConstraint(Sketcher.Constraint("DistanceX", -1, 1, 0, 2, 92.0))
sketch15.addConstraint(Sketcher.Constraint("DistanceY", 0, 2, -1, 1, 94.0))
sketch15.setExpression("Constraints[8]", "Params.sketch15_width")
sketch15.setExpression("Constraints[9]", "Params.sketch15_height")
pad7 = body.newObject("PartDesign::Pad", "Pad006")
pad7.Profile = sketch15
pad7.setExpression("Length", "Params.pad7_length")

# Sketch on YZ plane
sketch16 = body.newObject("Sketcher::SketchObject", "Sketch015")
sketch16.AttachmentSupport = (doc.getObject("YZ_Plane"), [""])
sketch16.MapMode = "FlatFace"
sketch16.AttachmentOffset = App.Placement(App.Vector(0, 0, 96), App.Rotation())
sketch16.addGeometry(Part.Circle(App.Vector(-88.7, 84, 0), App.Vector(0, 0, 1), 1.7), False)
sketch16.addGeometry(Part.Circle(App.Vector(-51.3, 84, 0), App.Vector(0, 0, 1), 1.7), False)
sketch16.addConstraint(Sketcher.Constraint("Equal", 0, 1))
sketch16.addConstraint(Sketcher.Constraint("Horizontal", 0, 3, 1, 3))
sketch16.addConstraint(Sketcher.Constraint("Diameter", 0, 3.4))
sketch16.addConstraint(Sketcher.Constraint("DistanceY", -1, 1, 0, 3, 84.0))
sketch16.addConstraint(Sketcher.Constraint("DistanceX", 0, 3, -1, 1, 88.7))
sketch16.addConstraint(Sketcher.Constraint("DistanceX", 1, 3, -1, 1, 51.3))
sketch16.setExpression("Constraints[2]", "Params.sketch16_diameter")
pocket9 = body.newObject("PartDesign::Pocket", "Pocket008")
pocket9.Profile = sketch16
pocket9.setExpression("Length", "Params.pocket9_length")

# Sketch on XY plane
sketch17 = body.newObject("Sketcher::SketchObject", "Sketch016")
sketch17.AttachmentSupport = (doc.getObject("XY_Plane"), [""])
sketch17.MapMode = "FlatFace"
sketch17.AttachmentOffset = App.Placement(App.Vector(0, 0, 57), App.Rotation())
sketch17.addGeometry(Part.LineSegment(App.Vector(-92, 52, 0), App.Vector(-92, 28, 0)), False)
sketch17.addGeometry(Part.LineSegment(App.Vector(-92, 28, 0), App.Vector(-88, 28, 0)), False)
sketch17.addGeometry(Part.LineSegment(App.Vector(-88, 28, 0), App.Vector(-88, 52, 0)), False)
sketch17.addGeometry(Part.LineSegment(App.Vector(-88, 52, 0), App.Vector(-92, 52, 0)), False)
sketch17.addConstraint(Sketcher.Constraint("Coincident", 0, 2, 1, 1))
sketch17.addConstraint(Sketcher.Constraint("Coincident", 1, 2, 2, 1))
sketch17.addConstraint(Sketcher.Constraint("Coincident", 2, 2, 3, 1))
sketch17.addConstraint(Sketcher.Constraint("Coincident", 3, 2, 0, 1))
sketch17.addConstraint(Sketcher.Constraint("Vertical", 0))
sketch17.addConstraint(Sketcher.Constraint("Horizontal", 1))
sketch17.addConstraint(Sketcher.Constraint("Vertical", 2))
sketch17.addConstraint(Sketcher.Constraint("Horizontal", 3))
sketch17.addConstraint(Sketcher.Constraint("DistanceX", 1, 1, 1, 2, 4.0))
sketch17.addConstraint(Sketcher.Constraint("DistanceY", 0, 2, 0, 1, 24.0))
sketch17.addConstraint(Sketcher.Constraint("DistanceX", 0, 2, -1, 1, 92.0))
sketch17.addConstraint(Sketcher.Constraint("DistanceY", -1, 1, 0, 2, 28.0))
sketch17.setExpression("Constraints[8]", "Params.sketch17_width")
sketch17.setExpression("Constraints[9]", "Params.sketch17_height")
pad8 = body.newObject("PartDesign::Pad", "Pad007")
pad8.Profile = sketch17
pad8.setExpression("Length", "Params.pad8_length")

# Sketch on YZ plane
sketch18 = body.newObject("Sketcher::SketchObject", "Sketch017")
sketch18.AttachmentSupport = (doc.getObject("YZ_Plane"), [""])
sketch18.MapMode = "FlatFace"
sketch18.AttachmentOffset = App.Placement(App.Vector(0, 0, -88), App.Rotation())
sketch18.addGeometry(Part.Circle(App.Vector(40, 72, 0), App.Vector(0, 0, 1), 9), False)
sketch18.addConstraint(Sketcher.Constraint("Diameter", 0, 18.2))
sketch18.addConstraint(Sketcher.Constraint("DistanceX", -1, 1, 0, 3, 40.0))
sketch18.addConstraint(Sketcher.Constraint("DistanceY", -1, 1, 0, 3, 72.0))
sketch18.setExpression("Constraints[0]", "Params.sketch18_diameter")
pocket10 = body.newObject("PartDesign::Pocket", "Pocket009")
pocket10.Profile = sketch18
pocket10.setExpression("Length", "Params.pocket10_length")

# Sketch on XY plane
sketch19 = body.newObject("Sketcher::SketchObject", "Sketch018")
sketch19.AttachmentSupport = (doc.getObject("XY_Plane"), [""])
sketch19.MapMode = "FlatFace"
sketch19.AttachmentOffset = App.Placement(App.Vector(0, 0, 57), App.Rotation())
sketch19.addGeometry(Part.LineSegment(App.Vector(36, 88, 0), App.Vector(36, 84, 0)), False)
sketch19.addGeometry(Part.LineSegment(App.Vector(36, 84, 0), App.Vector(60, 84, 0)), False)
sketch19.addGeometry(Part.LineSegment(App.Vector(60, 84, 0), App.Vector(60, 88, 0)), False)
sketch19.addGeometry(Part.LineSegment(App.Vector(60, 88, 0), App.Vector(36, 88, 0)), False)
sketch19.addGeometry(Part.LineSegment(App.Vector(36, -84, 0), App.Vector(36, -88, 0)), False)
sketch19.addGeometry(Part.LineSegment(App.Vector(36, -88, 0), App.Vector(60, -88, 0)), False)
sketch19.addGeometry(Part.LineSegment(App.Vector(60, -88, 0), App.Vector(60, -84, 0)), False)
sketch19.addGeometry(Part.LineSegment(App.Vector(60, -84, 0), App.Vector(36, -84, 0)), False)
sketch19.addConstraint(Sketcher.Constraint("Coincident", 0, 2, 1, 1))
sketch19.addConstraint(Sketcher.Constraint("Coincident", 1, 2, 2, 1))
sketch19.addConstraint(Sketcher.Constraint("Coincident", 2, 2, 3, 1))
sketch19.addConstraint(Sketcher.Constraint("Coincident", 3, 2, 0, 1))
sketch19.addConstraint(Sketcher.Constraint("Coincident", 4, 2, 5, 1))
sketch19.addConstraint(Sketcher.Constraint("Coincident", 5, 2, 6, 1))
sketch19.addConstraint(Sketcher.Constraint("Coincident", 6, 2, 7, 1))
sketch19.addConstraint(Sketcher.Constraint("Coincident", 7, 2, 4, 1))
sketch19.addConstraint(Sketcher.Constraint("Vertical", 0))
sketch19.addConstraint(Sketcher.Constraint("Horizontal", 1))
sketch19.addConstraint(Sketcher.Constraint("Vertical", 2))
sketch19.addConstraint(Sketcher.Constraint("Horizontal", 3))
sketch19.addConstraint(Sketcher.Constraint("Vertical", 4))
sketch19.addConstraint(Sketcher.Constraint("Horizontal", 5))
sketch19.addConstraint(Sketcher.Constraint("Vertical", 6))
sketch19.addConstraint(Sketcher.Constraint("Horizontal", 7))
sketch19.addConstraint(Sketcher.Constraint("Symmetric", 3, 2, 4, 2, -1))
sketch19.addConstraint(Sketcher.Constraint("Symmetric", 1, 2, 6, 2, -1))
sketch19.addConstraint(Sketcher.Constraint("DistanceX", 1, 1, 1, 2, 24.0))
sketch19.addConstraint(Sketcher.Constraint("DistanceY", 0, 2, 0, 1, 4.0))
sketch19.addConstraint(Sketcher.Constraint("DistanceX", -1, 1, 0, 2, 36.0))
sketch19.addConstraint(Sketcher.Constraint("DistanceY", -1, 1, 0, 2, 84.0))
sketch19.setExpression("Constraints[18]", "Params.sketch19_width")
sketch19.setExpression("Constraints[19]", "Params.sketch19_height")
pad9 = body.newObject("PartDesign::Pad", "Pad008")
pad9.Profile = sketch19
pad9.setExpression("Length", "Params.pad9_length")

# Sketch on XZ plane
sketch20 = body.newObject("Sketcher::SketchObject", "Sketch019")
sketch20.AttachmentSupport = (doc.getObject("XZ_Plane"), [""])
sketch20.MapMode = "FlatFace"
sketch20.addGeometry(Part.Circle(App.Vector(48, 78, 0), App.Vector(0, 0, 1), 9), False)
sketch20.addConstraint(Sketcher.Constraint("Diameter", 0, 18.2))
sketch20.addConstraint(Sketcher.Constraint("DistanceX", -1, 1, 0, 3, 48.0))
sketch20.addConstraint(Sketcher.Constraint("DistanceY", -1, 1, 0, 3, 78.0))
sketch20.setExpression("Constraints[0]", "Params.sketch20_diameter")
pocket11 = body.newObject("PartDesign::Pocket", "Pocket010")
pocket11.Profile = sketch20
pocket11.Type = "ThroughAll"
pocket11.Midplane = True

doc.recompute()
